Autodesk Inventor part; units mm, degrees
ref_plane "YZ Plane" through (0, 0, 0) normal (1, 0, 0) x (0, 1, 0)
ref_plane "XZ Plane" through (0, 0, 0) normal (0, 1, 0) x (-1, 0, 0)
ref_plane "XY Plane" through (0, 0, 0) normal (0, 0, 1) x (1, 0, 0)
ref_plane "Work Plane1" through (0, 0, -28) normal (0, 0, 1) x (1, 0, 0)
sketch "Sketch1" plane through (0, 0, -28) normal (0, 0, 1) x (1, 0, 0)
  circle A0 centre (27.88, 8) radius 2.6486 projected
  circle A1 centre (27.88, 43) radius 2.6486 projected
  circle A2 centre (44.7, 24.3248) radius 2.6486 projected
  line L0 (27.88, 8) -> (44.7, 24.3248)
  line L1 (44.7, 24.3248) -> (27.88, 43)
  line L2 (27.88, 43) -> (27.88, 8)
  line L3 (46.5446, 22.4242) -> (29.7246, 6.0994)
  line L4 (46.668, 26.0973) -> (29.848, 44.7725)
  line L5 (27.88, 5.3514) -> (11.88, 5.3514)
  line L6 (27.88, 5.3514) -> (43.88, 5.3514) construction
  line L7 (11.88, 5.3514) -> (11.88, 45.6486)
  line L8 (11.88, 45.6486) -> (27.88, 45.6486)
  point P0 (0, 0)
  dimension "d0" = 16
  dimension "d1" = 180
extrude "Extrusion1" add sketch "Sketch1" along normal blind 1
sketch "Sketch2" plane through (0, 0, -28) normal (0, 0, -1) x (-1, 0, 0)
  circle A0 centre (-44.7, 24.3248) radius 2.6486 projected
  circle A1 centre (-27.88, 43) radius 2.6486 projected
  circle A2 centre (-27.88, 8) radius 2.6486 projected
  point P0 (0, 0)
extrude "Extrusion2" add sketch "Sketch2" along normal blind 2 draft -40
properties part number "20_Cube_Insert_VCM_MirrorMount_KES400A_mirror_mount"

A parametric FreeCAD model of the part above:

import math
import FreeCAD as App
import Part
import Sketcher

doc = App.newDocument("Part")
body = doc.addObject("PartDesign::Body", "Body")

sketch1 = doc.addObject("Sketcher::SketchObject", "Sketch")
body.addObject(sketch1)
sketch1.AttachmentSupport = (doc.XY_Plane, [""])
sketch1.MapMode = "FlatFace"
sketch1.AttachmentOffset = App.Placement(App.Vector(0, 0, -28), App.Rotation())
sketch1.addGeometry(Part.ArcOfCircle(Part.Circle(App.Vector(27.9, 8, 0), App.Vector(0, 0, 1), 2.6), math.radians(-90), math.radians(-46)), False)
sketch1.addGeometry(Part.LineSegment(App.Vector(29.7, 6.1, 0), App.Vector(46.5, 22.4, 0)), False)
sketch1.addGeometry(Part.ArcOfCircle(Part.Circle(App.Vector(44.7, 24.3, 0), App.Vector(0, 0, 1), 2.6), math.radians(-46), math.radians(42)), False)
sketch1.addGeometry(Part.LineSegment(App.Vector(46.7, 26.1, 0), App.Vector(29.8, 44.8, 0)), False)
sketch1.addGeometry(Part.ArcOfCircle(Part.Circle(App.Vector(27.9, 43, 0), App.Vector(0, 0, 1), 2.6), math.radians(42), math.radians(90)), False)
sketch1.addGeometry(Part.LineSegment(App.Vector(27.9, 45.6, 0), App.Vector(11.9, 45.6, 0)), False)
sketch1.addGeometry(Part.LineSegment(App.Vector(11.9, 45.6, 0), App.Vector(11.9, 5.4, 0)), False)
sketch1.addGeometry(Part.LineSegment(App.Vector(11.9, 5.4, 0), App.Vector(27.9, 5.4, 0)), False)
sketch1.addConstraint(Sketcher.Constraint("Tangent", 0, 2, 1, 1))
sketch1.addConstraint(Sketcher.Constraint("Tangent", 1, 2, 2, 1))
sketch1.addConstraint(Sketcher.Constraint("Tangent", 2, 2, 3, 1))
sketch1.addConstraint(Sketcher.Constraint("Tangent", 3, 2, 4, 1))
sketch1.addConstraint(Sketcher.Constraint("Tangent", 4, 2, 5, 1))
sketch1.addConstraint(Sketcher.Constraint("Coincident", 5, 2, 6, 1))
sketch1.addConstraint(Sketcher.Constraint("Coincident", 6, 2, 7, 1))
sketch1.addConstraint(Sketcher.Constraint("Tangent", 7, 2, 0, 1))
sketch1.addConstraint(Sketcher.Constraint("Horizontal", 5))
sketch1.addConstraint(Sketcher.Constraint("Vertical", 6))
sketch1.addConstraint(Sketcher.Constraint("Horizontal", 7))
sketch1.addConstraint(Sketcher.Constraint("Equal", 0, 2))
sketch1.addConstraint(Sketcher.Constraint("Equal", 2, 4))
sketch1.addConstraint(Sketcher.Constraint("Vertical", 0, 3, 4, 3))
sketch1.addConstraint(Sketcher.Constraint("DistanceX", 5, 2, 5, 1, 16.0))
sketch1.addConstraint(Sketcher.Constraint("DistanceY", -1, 1, 0, 3, 8.0))
sketch1.addConstraint(Sketcher.Constraint("DistanceY", -1, 1, 4, 3, 43.0))
sketch1.addConstraint(Sketcher.Constraint("DistanceX", -1, 1, 2, 3, 44.7))
sketch1.addConstraint(Sketcher.Constraint("Radius", 0, 2.6486))
sketch1.addConstraint(Sketcher.Constraint("DistanceX", -1, 1, 0, 3, 27.88))
sketch1.addConstraint(Sketcher.Constraint("DistanceX", -1, 1, 2, 2, 46.668))
pad1 = doc.addObject("PartDesign::Pad", "Pad")
body.addObject(pad1)
pad1.Profile = sketch1
pad1.Length = 1

sketch2 = doc.addObject("Sketcher::SketchObject", "Sketch001")
body.addObject(sketch2)
sketch2.AttachmentSupport = (doc.XY_Plane, [""])
sketch2.MapMode = "FlatFace"
sketch2.AttachmentOffset = App.Placement(App.Vector(0, 0, -28), App.Rotation())
sketch2.addGeometry(Part.Circle(App.Vector(44.7, 24.3, 0), App.Vector(0, 0, 1), 2.6), False)
sketch2.addGeometry(Part.Circle(App.Vector(27.9, 43, 0), App.Vector(0, 0, 1), 2.6), False)
sketch2.addGeometry(Part.Circle(App.Vector(27.9, 8, 0), App.Vector(0, 0, 1), 2.6), False)
sketch2.addConstraint(Sketcher.Constraint("Equal", 0, 1))
sketch2.addConstraint(Sketcher.Constraint("Equal", 1, 2))
sketch2.addConstraint(Sketcher.Constraint("Vertical", 1, 3, 2, 3))
sketch2.addConstraint(Sketcher.Constraint("DistanceY", -1, 1, 1, 3, 43.0))
sketch2.addConstraint(Sketcher.Constraint("DistanceY", -1, 1, 2, 3, 8.0))
sketch2.addConstraint(Sketcher.Constraint("Diameter", 0, 5.2972))
sketch2.addConstraint(Sketcher.Constraint("DistanceX", -1, 1, 0, 3, 44.7))
sketch2.addConstraint(Sketcher.Constraint("DistanceX", -1, 1, 1, 3, 27.88))
sketch2.addConstraint(Sketcher.Constraint("DistanceY", -1, 1, 0, 3, 24.3248))
pad2 = doc.addObject("PartDesign::Pad", "Pad001")
body.addObject(pad2)
pad2.Profile = sketch2
pad2.Length = 2
pad2.Reversed = True
pad2.TaperAngle = -40

doc.recompute()
